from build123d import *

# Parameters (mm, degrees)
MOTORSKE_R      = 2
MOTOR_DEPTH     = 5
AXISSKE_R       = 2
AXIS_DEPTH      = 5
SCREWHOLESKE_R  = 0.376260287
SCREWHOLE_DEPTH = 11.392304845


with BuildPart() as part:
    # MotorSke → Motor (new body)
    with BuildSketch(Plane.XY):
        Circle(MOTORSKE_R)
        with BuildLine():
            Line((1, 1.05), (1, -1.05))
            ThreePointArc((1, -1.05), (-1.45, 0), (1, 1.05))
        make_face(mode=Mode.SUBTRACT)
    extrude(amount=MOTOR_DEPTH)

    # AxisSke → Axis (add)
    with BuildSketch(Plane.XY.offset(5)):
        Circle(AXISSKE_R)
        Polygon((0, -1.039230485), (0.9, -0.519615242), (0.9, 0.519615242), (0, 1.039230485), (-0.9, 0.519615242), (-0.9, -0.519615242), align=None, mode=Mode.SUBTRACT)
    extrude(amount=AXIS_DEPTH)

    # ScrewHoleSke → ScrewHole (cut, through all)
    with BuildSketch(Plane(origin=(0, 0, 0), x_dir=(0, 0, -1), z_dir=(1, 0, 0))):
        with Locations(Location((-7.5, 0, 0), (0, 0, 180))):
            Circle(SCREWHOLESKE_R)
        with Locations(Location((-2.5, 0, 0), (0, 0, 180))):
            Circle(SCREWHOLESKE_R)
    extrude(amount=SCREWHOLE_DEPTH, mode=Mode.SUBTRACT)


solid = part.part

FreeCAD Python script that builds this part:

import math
import FreeCAD as App
import Part
import Sketcher
from FreeCAD import Vector
Q = App.Units.Quantity

doc = App.newDocument("Part")
body = doc.addObject("PartDesign::Body", "Body")

sketch1 = doc.addObject("Sketcher::SketchObject", "Sketch")
body.addObject(sketch1)
sketch1.AttachmentSupport = (doc.XY_Plane, [""])
sketch1.MapMode = "FlatFace"
sketch1.addGeometry([
    Part.Circle(Vector(0, 0, 0), Vector(0, 0, 1), 2),
    Part.ArcOfCircle(Part.Circle(Vector(0, 0, 0), Vector(0, 0, 1), 1.45), math.radians(46.397181), math.radians(313.602819)),
    Part.LineSegment(Vector(1, 1.05, 0), Vector(1, -1.05, 0)),
], False)
sketch1.addConstraint([
    Sketcher.Constraint("Coincident", 1, 1, 2, 1),
    Sketcher.Constraint("Coincident", 2, 2, 1, 2),
    Sketcher.Constraint("Vertical", 2),
    Sketcher.Constraint("Coincident", 0, 3, -1, 1),
    Sketcher.Constraint("Coincident", 1, 3, -1, 1),
    Sketcher.Constraint("Diameter", 0, Q("4 mm")),
    Sketcher.Constraint("Radius", 1, Q("1.45 mm")),
    Sketcher.Constraint("DistanceY", 2, 2, 2, 1, Q("2.1 mm")),
])
pad1 = doc.addObject("PartDesign::Pad", "Pad")
body.addObject(pad1)
pad1.Profile = sketch1
pad1.Length = 5

sketch2 = doc.addObject("Sketcher::SketchObject", "Sketch001")
body.addObject(sketch2)
sketch2.AttachmentSupport = (doc.XY_Plane, [""])
sketch2.MapMode = "FlatFace"
sketch2.AttachmentOffset = App.Placement(Vector(0, 0, 5), App.Rotation())
sketch2.addGeometry([
    Part.Circle(Vector(0, 0, 0), Vector(0, 0, 1), 2),
    Part.LineSegment(Vector(0.9, -0.519615, 0), Vector(0, -1.03923, 0)),
    Part.LineSegment(Vector(0, -1.03923, 0), Vector(-0.9, -0.519615, 0)),
    Part.LineSegment(Vector(-0.9, -0.519615, 0), Vector(-0.9, 0.519615, 0)),
    Part.LineSegment(Vector(-0.9, 0.519615, 0), Vector(0, 1.03923, 0)),
    Part.LineSegment(Vector(0, 1.03923, 0), Vector(0.9, 0.519615, 0)),
    Part.LineSegment(Vector(0.9, 0.519615, 0), Vector(0.9, -0.519615, 0)),
], False)
sketch2.addConstraint([
    Sketcher.Constraint("Coincident", 1, 2, 2, 1),
    Sketcher.Constraint("Coincident", 2, 2, 3, 1),
    Sketcher.Constraint("Coincident", 3, 2, 4, 1),
    Sketcher.Constraint("Coincident", 4, 2, 5, 1),
    Sketcher.Constraint("Coincident", 5, 2, 6, 1),
    Sketcher.Constraint("Coincident", 6, 2, 1, 1),
    Sketcher.Constraint("Vertical", 3),
    Sketcher.Constraint("Vertical", 6),
    Sketcher.Constraint("Coincident", 0, 3, -1, 1),
    Sketcher.Constraint("Symmetric", 1, 2, 4, 2, -1, 1),
    Sketcher.Constraint("Symmetric", 2, 2, 5, 2, -1, 1),
    Sketcher.Constraint("PointOnObject", 1, 2, -2),
    Sketcher.Constraint("Parallel", 1, 4),
    Sketcher.Constraint("Horizontal", 3, 2, 5, 2),
    Sketcher.Constraint("Diameter", 0, Q("4 mm")),
    Sketcher.Constraint("Angle", 1, Q("-150 deg")),
    Sketcher.Constraint("DistanceX", 2, 2, -1, 1, Q("0.9 mm")),
    Sketcher.Constraint("DistanceY", 3, 1, 3, 2, Q("1.03923 mm")),
])
pad2 = doc.addObject("PartDesign::Pad", "Pad001")
body.addObject(pad2)
pad2.Profile = sketch2
pad2.Length = 5

sketch3 = doc.addObject("Sketcher::SketchObject", "Sketch002")
body.addObject(sketch3)
sketch3.AttachmentSupport = (doc.YZ_Plane, [""])
sketch3.MapMode = "FlatFace"
sketch3.addGeometry([
    Part.Circle(Vector(0, 7.5, 0), Vector(0, 0, 1), 0.37626),
    Part.Circle(Vector(0, 2.5, 0), Vector(0, 0, 1), 0.37626),
], False)
sketch3.addConstraint([
    Sketcher.Constraint("Equal", 0, 1),
    Sketcher.Constraint("PointOnObject", 0, 3, -2),
    Sketcher.Constraint("PointOnObject", 1, 3, -2),
    Sketcher.Constraint("DistanceY", 1, 3, 0, 3, Q("5 mm")),
    Sketcher.Constraint("DistanceY", -1, 1, 0, 3, Q("7.5 mm")),
    Sketcher.Constraint("Diameter", 0, Q("0.752521 mm")),
])
pocket1 = doc.addObject("PartDesign::Pocket", "Pocket")
body.addObject(pocket1)
pocket1.Profile = sketch3
pocket1.Type = "ThroughAll"
pocket1.Reversed = True

doc.recompute()
